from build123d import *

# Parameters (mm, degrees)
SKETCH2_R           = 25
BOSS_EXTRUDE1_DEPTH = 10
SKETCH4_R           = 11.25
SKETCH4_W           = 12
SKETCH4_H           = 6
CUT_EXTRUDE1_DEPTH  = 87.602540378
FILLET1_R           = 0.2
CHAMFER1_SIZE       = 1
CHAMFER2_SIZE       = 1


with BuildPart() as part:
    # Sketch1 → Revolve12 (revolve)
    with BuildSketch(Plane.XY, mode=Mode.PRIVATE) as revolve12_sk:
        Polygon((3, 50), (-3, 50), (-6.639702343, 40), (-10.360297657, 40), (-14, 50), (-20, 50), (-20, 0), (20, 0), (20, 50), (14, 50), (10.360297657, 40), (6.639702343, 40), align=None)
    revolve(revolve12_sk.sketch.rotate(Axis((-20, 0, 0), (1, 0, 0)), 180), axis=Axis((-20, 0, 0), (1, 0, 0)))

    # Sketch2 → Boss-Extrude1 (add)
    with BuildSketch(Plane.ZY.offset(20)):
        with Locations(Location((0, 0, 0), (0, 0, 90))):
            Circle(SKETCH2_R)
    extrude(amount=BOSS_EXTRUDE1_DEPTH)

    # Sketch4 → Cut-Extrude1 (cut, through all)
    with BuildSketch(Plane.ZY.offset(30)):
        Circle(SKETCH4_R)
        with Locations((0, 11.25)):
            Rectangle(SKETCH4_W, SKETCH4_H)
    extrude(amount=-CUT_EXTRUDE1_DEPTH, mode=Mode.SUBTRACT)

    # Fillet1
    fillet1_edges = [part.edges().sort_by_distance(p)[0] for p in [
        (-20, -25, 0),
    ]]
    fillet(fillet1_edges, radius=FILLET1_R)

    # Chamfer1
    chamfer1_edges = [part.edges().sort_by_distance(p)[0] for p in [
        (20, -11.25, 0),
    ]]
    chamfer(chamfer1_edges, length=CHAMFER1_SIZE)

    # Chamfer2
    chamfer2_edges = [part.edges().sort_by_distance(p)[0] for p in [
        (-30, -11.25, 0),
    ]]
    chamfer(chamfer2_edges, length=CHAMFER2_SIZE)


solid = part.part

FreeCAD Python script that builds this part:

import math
import FreeCAD as App
import Part
import Sketcher
from FreeCAD import Vector
Q = App.Units.Quantity


def edges_at(feature, points):
    """Names of the edges that pass closest to the given points."""
    edges = feature.Shape.Edges
    near = lambda p: min(range(len(edges)), key=lambda i: edges[i].distToShape(Part.Vertex(*p))[0])
    return sorted({f"Edge{near(p) + 1}" for p in points})

doc = App.newDocument("Part")
body = doc.addObject("PartDesign::Body", "Body")

sketch1 = body.newObject("Sketcher::SketchObject", "Sketch")
sketch1.AttachmentSupport = (doc.getObject("XY_Plane"), [""])
sketch1.MapMode = "FlatFace"
sketch1.addGeometry([
    Part.LineSegment(Vector(3, 50, 0), Vector(-3, 50, 0)),
    Part.LineSegment(Vector(-3, 50, 0), Vector(-6.6, 40, 0)),
    Part.LineSegment(Vector(-6.6, 40, 0), Vector(-10.4, 40, 0)),
    Part.LineSegment(Vector(-10.4, 40, 0), Vector(-14, 50, 0)),
    Part.LineSegment(Vector(-14, 50, 0), Vector(-20, 50, 0)),
    Part.LineSegment(Vector(-20, 50, 0), Vector(-20, 0, 0)),
    Part.LineSegment(Vector(-20, 0, 0), Vector(20, 0, 0)),
    Part.LineSegment(Vector(20, 0, 0), Vector(20, 50, 0)),
    Part.LineSegment(Vector(20, 50, 0), Vector(14, 50, 0)),
    Part.LineSegment(Vector(14, 50, 0), Vector(10.4, 40, 0)),
    Part.LineSegment(Vector(10.4, 40, 0), Vector(6.6, 40, 0)),
    Part.LineSegment(Vector(6.6, 40, 0), Vector(3, 50, 0)),
], False)
sketch1.addConstraint([
    Sketcher.Constraint("Coincident", 0, 2, 1, 1),
    Sketcher.Constraint("Coincident", 1, 2, 2, 1),
    Sketcher.Constraint("Coincident", 2, 2, 3, 1),
    Sketcher.Constraint("Coincident", 3, 2, 4, 1),
    Sketcher.Constraint("Coincident", 4, 2, 5, 1),
    Sketcher.Constraint("Coincident", 5, 2, 6, 1),
    Sketcher.Constraint("Coincident", 6, 2, 7, 1),
    Sketcher.Constraint("Coincident", 7, 2, 8, 1),
    Sketcher.Constraint("Coincident", 8, 2, 9, 1),
    Sketcher.Constraint("Coincident", 9, 2, 10, 1),
    Sketcher.Constraint("Coincident", 10, 2, 11, 1),
    Sketcher.Constraint("Coincident", 11, 2, 0, 1),
    Sketcher.Constraint("Horizontal", 0),
    Sketcher.Constraint("Horizontal", 2),
    Sketcher.Constraint("Horizontal", 4),
    Sketcher.Constraint("Vertical", 5),
    Sketcher.Constraint("Horizontal", 6),
    Sketcher.Constraint("Vertical", 7),
    Sketcher.Constraint("Horizontal", 8),
    Sketcher.Constraint("Horizontal", 10),
    Sketcher.Constraint("Symmetric", 5, 2, 6, 2, -1, 1),
    Sketcher.Constraint("Symmetric", 3, 2, 8, 2, -2),
    Sketcher.Constraint("Symmetric", 2, 2, 9, 2, -2),
    Sketcher.Constraint("Parallel", 1, 9),
    Sketcher.Constraint("Parallel", 3, 11),
    Sketcher.Constraint("Horizontal", 0, 2, 3, 2),
    Sketcher.Constraint("Equal", 0, 4),
    Sketcher.Constraint("Equal", 2, 10),
    Sketcher.Constraint("DistanceX", 0, 2, 0, 1, 6.0),
    Sketcher.Constraint("DistanceX", 6, 1, 6, 2, 40.0),
    Sketcher.Constraint("DistanceY", 5, 2, 5, 1, 50.0),
    Sketcher.Constraint("Angle", 1, Q("-110 deg")),
    Sketcher.Constraint("DistanceY", -1, 1, 1, 2, 40.0),
])
revolution = body.newObject("PartDesign::Revolution", "Revolution")
revolution.Profile = sketch1
revolution.ReferenceAxis = (sketch1, ["H_Axis"])
revolution.Angle = 360

sketch2 = body.newObject("Sketcher::SketchObject", "Sketch001")
sketch2.AttachmentSupport = (doc.getObject("YZ_Plane"), [""])
sketch2.MapMode = "FlatFace"
sketch2.AttachmentOffset = App.Placement(Vector(0, 0, -20), App.Rotation())
sketch2.addGeometry(Part.Circle(Vector(0, 0, 0), Vector(0, 0, 1), 25), False)
sketch2.addConstraint([
    Sketcher.Constraint("Coincident", 0, 3, -1, 1),
    Sketcher.Constraint("Diameter", 0, 50.0),
])
pad1 = body.newObject("PartDesign::Pad", "Pad")
pad1.Profile = sketch2
pad1.Length = 10
pad1.Reversed = True

sketch3 = body.newObject("Sketcher::SketchObject", "Sketch002")
sketch3.AttachmentSupport = (doc.getObject("YZ_Plane"), [""])
sketch3.MapMode = "FlatFace"
sketch3.AttachmentOffset = App.Placement(Vector(0, 0, -30), App.Rotation())
sketch3.addGeometry([
    Part.ArcOfCircle(Part.Circle(Vector(0, 0, 0), Vector(0, 0, 1), 11.2), math.radians(32), math.radians(328)),
    Part.LineSegment(Vector(9.5, 6, 0), Vector(14.2, 6, 0)),
    Part.LineSegment(Vector(14.2, 6, 0), Vector(14.2, -6, 0)),
    Part.LineSegment(Vector(14.2, -6, 0), Vector(9.5, -6, 0)),
], False)
sketch3.addConstraint([
    Sketcher.Constraint("Coincident", 0, 1, 1, 1),
    Sketcher.Constraint("Coincident", 1, 2, 2, 1),
    Sketcher.Constraint("Coincident", 2, 2, 3, 1),
    Sketcher.Constraint("Coincident", 3, 2, 0, 2),
    Sketcher.Constraint("Horizontal", 1),
    Sketcher.Constraint("Vertical", 2),
    Sketcher.Constraint("Horizontal", 3),
    Sketcher.Constraint("Coincident", 0, 3, -1, 1),
    Sketcher.Constraint("Vertical", 0, 1, 3, 2),
    Sketcher.Constraint("DistanceY", 2, 2, 2, 1, 12.0),
    Sketcher.Constraint("Radius", 0, 11.25),
    Sketcher.Constraint("DistanceX", -1, 1, 1, 2, 14.25),
])
pocket1 = body.newObject("PartDesign::Pocket", "Pocket")
pocket1.Profile = sketch3
pocket1.Type = "ThroughAll"
pocket1.Reversed = True
doc.recompute()

fillet = body.newObject("PartDesign::Fillet", "Fillet")
fillet.Base = (pocket1, edges_at(pocket1, [(-20, -25, 0)]))
fillet.Radius = 0.2
doc.recompute()

chamfer = body.newObject("PartDesign::Chamfer", "Chamfer")
chamfer.Base = (fillet, edges_at(fillet, [(20, -11.25, 0)]))
chamfer.Size = 1
doc.recompute()

chamfer2 = body.newObject("PartDesign::Chamfer", "Chamfer001")
chamfer2.Base = (chamfer, edges_at(chamfer, [(-30, -11.25, 0)]))
chamfer2.Size = 1

doc.recompute()
